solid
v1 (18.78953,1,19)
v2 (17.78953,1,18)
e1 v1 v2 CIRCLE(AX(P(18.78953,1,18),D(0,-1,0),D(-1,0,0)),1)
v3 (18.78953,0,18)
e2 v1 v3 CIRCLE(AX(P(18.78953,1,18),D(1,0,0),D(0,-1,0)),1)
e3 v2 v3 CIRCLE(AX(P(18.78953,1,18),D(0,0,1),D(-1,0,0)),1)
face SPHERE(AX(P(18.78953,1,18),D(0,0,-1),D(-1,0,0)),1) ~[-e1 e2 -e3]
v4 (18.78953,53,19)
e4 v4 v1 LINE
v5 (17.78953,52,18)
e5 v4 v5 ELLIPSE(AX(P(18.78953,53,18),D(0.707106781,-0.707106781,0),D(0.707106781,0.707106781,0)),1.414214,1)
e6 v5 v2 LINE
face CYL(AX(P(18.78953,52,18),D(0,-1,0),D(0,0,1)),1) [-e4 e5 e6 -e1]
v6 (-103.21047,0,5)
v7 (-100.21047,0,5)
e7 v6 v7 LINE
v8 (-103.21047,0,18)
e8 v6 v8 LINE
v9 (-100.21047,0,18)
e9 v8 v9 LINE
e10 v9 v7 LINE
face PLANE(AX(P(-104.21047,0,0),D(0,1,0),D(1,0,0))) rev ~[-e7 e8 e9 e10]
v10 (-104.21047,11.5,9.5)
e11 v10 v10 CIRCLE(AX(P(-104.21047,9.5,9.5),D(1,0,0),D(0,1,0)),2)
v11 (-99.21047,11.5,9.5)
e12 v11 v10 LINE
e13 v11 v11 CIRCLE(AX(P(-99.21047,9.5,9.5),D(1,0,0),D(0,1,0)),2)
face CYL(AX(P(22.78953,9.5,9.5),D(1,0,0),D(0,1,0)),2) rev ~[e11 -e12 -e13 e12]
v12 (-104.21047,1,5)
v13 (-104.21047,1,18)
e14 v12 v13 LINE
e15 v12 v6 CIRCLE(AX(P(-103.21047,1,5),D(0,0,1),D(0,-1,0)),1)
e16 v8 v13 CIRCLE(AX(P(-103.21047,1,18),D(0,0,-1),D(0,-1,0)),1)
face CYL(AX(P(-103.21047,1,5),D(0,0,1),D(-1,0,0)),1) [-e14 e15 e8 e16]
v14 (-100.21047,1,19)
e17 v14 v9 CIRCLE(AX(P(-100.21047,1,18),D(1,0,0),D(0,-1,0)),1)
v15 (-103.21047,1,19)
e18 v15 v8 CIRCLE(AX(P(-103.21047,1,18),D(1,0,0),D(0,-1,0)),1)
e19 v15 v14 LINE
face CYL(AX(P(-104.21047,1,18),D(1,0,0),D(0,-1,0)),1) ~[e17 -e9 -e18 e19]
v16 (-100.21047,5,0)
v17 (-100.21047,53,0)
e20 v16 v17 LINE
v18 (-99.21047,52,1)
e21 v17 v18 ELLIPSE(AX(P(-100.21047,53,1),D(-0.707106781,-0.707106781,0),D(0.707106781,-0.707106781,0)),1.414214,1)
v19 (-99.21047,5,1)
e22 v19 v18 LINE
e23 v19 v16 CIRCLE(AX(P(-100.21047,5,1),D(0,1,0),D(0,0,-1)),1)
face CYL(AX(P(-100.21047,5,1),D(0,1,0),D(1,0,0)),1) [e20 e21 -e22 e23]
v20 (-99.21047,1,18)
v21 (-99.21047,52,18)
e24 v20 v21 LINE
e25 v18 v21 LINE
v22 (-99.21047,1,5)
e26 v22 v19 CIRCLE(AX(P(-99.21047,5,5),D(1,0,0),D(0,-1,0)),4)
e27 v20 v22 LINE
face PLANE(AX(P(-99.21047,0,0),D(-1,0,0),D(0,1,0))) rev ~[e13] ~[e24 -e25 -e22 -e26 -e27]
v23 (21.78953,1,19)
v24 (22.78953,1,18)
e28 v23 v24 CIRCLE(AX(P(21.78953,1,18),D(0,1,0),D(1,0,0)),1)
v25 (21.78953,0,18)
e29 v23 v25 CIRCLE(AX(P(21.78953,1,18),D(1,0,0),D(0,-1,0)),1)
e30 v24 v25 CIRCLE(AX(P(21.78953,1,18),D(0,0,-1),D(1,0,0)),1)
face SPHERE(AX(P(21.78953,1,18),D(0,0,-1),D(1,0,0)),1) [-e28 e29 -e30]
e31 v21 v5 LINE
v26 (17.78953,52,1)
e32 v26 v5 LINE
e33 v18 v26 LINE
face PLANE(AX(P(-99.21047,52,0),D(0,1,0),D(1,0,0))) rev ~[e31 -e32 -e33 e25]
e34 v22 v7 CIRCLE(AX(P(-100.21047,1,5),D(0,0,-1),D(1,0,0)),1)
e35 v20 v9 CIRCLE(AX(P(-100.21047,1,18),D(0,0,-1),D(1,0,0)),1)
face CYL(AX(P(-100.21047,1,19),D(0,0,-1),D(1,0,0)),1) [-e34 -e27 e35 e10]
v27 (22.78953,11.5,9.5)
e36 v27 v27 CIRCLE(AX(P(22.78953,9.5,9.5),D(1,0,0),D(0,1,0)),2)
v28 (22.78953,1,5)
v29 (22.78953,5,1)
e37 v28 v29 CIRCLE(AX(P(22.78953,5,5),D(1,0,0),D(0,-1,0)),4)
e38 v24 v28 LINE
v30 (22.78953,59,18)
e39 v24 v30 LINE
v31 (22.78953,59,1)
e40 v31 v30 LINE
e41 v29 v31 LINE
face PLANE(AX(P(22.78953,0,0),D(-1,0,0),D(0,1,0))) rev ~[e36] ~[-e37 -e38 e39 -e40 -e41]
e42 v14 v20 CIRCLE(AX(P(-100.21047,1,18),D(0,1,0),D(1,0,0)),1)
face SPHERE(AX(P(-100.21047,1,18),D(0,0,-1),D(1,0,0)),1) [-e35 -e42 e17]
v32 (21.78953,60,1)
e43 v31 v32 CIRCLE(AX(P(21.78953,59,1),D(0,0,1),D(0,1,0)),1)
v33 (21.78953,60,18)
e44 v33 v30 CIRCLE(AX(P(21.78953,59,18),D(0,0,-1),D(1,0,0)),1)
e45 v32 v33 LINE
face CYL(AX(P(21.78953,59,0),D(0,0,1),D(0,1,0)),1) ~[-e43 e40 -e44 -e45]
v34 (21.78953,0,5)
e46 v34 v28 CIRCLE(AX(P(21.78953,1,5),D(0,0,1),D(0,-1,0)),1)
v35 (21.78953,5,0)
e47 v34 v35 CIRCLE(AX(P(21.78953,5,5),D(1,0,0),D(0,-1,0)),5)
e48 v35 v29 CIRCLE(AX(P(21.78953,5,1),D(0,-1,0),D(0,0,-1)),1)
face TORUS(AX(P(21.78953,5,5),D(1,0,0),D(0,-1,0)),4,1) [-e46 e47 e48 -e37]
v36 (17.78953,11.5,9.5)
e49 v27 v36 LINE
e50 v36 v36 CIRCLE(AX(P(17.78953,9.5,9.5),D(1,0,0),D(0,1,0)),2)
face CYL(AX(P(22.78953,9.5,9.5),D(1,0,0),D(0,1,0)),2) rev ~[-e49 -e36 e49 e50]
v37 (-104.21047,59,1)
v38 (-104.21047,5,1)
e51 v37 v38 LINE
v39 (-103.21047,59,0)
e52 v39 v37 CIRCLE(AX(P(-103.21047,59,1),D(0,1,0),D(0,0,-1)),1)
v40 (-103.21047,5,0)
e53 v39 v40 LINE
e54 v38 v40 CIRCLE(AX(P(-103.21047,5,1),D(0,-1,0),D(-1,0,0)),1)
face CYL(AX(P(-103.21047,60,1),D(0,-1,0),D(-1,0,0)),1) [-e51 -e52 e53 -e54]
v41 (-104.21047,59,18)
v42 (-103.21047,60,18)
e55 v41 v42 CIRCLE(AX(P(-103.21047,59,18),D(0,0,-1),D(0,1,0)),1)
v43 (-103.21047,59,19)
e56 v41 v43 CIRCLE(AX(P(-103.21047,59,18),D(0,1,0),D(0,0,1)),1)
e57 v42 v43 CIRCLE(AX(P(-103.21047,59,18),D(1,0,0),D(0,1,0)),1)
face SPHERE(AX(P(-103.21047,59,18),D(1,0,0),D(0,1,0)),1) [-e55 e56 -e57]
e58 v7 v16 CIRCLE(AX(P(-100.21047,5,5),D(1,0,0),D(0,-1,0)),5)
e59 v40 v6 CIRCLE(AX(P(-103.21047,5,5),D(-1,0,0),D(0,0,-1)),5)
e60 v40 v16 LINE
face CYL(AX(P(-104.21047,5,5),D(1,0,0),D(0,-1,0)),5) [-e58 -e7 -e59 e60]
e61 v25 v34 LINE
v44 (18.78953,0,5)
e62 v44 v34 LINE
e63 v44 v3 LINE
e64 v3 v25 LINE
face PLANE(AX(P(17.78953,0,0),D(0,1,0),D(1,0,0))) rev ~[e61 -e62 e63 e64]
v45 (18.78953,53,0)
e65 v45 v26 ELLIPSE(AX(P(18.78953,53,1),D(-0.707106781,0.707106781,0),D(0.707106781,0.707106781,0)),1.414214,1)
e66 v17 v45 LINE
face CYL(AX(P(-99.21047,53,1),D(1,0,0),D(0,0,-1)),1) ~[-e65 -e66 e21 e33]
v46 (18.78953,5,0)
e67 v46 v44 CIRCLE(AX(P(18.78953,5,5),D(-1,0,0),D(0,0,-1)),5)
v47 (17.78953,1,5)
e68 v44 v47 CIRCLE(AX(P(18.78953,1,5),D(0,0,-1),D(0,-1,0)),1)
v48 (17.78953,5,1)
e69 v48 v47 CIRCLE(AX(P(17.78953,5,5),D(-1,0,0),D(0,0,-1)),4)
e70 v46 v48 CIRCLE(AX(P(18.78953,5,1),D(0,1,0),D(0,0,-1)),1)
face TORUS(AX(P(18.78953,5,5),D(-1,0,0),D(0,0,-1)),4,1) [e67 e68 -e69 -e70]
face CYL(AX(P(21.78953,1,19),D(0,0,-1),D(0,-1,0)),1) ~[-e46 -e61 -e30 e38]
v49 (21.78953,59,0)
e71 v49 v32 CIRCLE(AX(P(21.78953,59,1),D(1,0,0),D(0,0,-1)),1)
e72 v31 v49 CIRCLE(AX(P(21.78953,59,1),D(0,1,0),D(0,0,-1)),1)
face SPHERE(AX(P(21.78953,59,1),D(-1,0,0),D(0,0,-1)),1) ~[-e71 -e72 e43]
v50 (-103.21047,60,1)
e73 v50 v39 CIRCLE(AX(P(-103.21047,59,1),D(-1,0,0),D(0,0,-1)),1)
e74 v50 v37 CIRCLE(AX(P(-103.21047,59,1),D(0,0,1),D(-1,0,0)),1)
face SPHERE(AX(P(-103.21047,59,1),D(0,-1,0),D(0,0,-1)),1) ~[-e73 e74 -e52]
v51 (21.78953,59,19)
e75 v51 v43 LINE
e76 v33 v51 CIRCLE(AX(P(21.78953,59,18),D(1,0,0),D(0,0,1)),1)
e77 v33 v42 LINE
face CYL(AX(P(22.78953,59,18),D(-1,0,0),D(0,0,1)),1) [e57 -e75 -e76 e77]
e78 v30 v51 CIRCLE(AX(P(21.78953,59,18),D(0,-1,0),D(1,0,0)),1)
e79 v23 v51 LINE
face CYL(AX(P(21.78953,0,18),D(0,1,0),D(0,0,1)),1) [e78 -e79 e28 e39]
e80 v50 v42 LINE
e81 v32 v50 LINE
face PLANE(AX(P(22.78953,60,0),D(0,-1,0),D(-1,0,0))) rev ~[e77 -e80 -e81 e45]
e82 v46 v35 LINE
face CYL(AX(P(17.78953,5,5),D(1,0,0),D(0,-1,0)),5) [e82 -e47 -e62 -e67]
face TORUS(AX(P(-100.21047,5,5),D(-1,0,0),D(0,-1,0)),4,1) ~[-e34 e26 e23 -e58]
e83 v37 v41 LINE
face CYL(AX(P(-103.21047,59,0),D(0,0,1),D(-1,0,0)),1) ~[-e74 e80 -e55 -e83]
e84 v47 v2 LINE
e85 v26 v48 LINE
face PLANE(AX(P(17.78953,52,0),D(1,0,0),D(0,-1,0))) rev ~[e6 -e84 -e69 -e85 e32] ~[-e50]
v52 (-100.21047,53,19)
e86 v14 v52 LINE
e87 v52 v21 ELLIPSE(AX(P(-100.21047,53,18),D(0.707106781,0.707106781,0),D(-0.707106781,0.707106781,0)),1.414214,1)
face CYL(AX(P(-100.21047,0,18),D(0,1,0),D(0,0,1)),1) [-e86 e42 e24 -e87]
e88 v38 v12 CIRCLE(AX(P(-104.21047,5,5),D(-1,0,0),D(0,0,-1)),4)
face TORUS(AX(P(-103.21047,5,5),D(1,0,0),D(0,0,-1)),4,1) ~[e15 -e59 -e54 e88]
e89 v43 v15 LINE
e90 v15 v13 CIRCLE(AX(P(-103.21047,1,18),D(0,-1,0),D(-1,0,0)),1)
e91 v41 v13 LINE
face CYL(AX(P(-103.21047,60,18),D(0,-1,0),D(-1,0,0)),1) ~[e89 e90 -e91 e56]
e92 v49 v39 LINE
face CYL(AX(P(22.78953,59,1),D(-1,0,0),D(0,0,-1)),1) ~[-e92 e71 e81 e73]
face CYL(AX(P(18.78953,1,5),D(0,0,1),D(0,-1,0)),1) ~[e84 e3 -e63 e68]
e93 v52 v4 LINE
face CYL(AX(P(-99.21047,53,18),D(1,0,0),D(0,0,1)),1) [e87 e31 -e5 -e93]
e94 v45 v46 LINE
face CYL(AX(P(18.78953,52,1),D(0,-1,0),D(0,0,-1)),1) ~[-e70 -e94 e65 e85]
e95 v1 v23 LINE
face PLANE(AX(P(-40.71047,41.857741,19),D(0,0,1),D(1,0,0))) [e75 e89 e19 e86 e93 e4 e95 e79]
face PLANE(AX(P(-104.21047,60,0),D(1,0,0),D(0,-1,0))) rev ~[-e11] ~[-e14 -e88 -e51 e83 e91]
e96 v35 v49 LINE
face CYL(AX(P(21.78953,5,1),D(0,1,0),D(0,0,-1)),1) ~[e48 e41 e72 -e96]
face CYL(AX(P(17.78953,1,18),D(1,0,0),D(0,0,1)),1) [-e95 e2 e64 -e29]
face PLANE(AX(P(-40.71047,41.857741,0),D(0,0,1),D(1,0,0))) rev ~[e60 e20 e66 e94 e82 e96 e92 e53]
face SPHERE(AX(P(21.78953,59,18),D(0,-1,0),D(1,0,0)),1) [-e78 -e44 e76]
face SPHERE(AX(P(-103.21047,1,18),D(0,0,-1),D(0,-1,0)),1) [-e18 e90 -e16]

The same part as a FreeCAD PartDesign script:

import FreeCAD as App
import Part
import Sketcher
from FreeCAD import Vector
Q = App.Units.Quantity


def edges_at(feature, points):
    """Names of the edges that pass closest to the given points."""
    edges = feature.Shape.Edges
    near = lambda p: min(range(len(edges)), key=lambda i: edges[i].distToShape(Part.Vertex(*p))[0])
    return sorted({f"Edge{near(p) + 1}" for p in points})

doc = App.newDocument("Part")
params = doc.addObject("Spreadsheet::Sheet", "Params")
for row, (alias, value) in enumerate([
    ("sketch1_width", "5 mm"),
    ("sketch1_width2", "117 mm"),
    ("sketch1_height", "52 mm"),
    ("sketch1_height2", "60 mm"),
    ("pad1_length", "19 mm"),
    ("fillet_radius", "5 mm"),
    ("fillet2_radius", "1 mm"),
    ("sketch2_diameter", "4 mm"),
], start=1):
    params.set(f"A{row}", alias)
    params.set(f"B{row}", "=" + value)
    params.setAlias(f"B{row}", alias)

body = doc.addObject("PartDesign::Body", "Body")

sketch1 = body.newObject("Sketcher::SketchObject", "Sketch")
sketch1.AttachmentSupport = (doc.getObject("XY_Plane"), [""])
sketch1.MapMode = "FlatFace"
sketch1.addGeometry([
    Part.LineSegment(Vector(-104, 0, 0), Vector(-99, 0, 0)),
    Part.LineSegment(Vector(-99, 0, 0), Vector(-99, 52, 0)),
    Part.LineSegment(Vector(-99, 52, 0), Vector(18, 52, 0)),
    Part.LineSegment(Vector(18, 52, 0), Vector(18, 0, 0)),
    Part.LineSegment(Vector(18, 0, 0), Vector(23, 0, 0)),
    Part.LineSegment(Vector(23, 0, 0), Vector(23, 60, 0)),
    Part.LineSegment(Vector(23, 60, 0), Vector(-104, 60, 0)),
    Part.LineSegment(Vector(-104, 60, 0), Vector(-104, 0, 0)),
], False)
sketch1.addConstraint([
    Sketcher.Constraint("Coincident", 0, 2, 1, 1),
    Sketcher.Constraint("Coincident", 1, 2, 2, 1),
    Sketcher.Constraint("Coincident", 2, 2, 3, 1),
    Sketcher.Constraint("Coincident", 3, 2, 4, 1),
    Sketcher.Constraint("Coincident", 4, 2, 5, 1),
    Sketcher.Constraint("Coincident", 5, 2, 6, 1),
    Sketcher.Constraint("Coincident", 6, 2, 7, 1),
    Sketcher.Constraint("Coincident", 7, 2, 0, 1),
    Sketcher.Constraint("Horizontal", 0),
    Sketcher.Constraint("Vertical", 1),
    Sketcher.Constraint("Horizontal", 2),
    Sketcher.Constraint("Vertical", 3),
    Sketcher.Constraint("Horizontal", 4),
    Sketcher.Constraint("Vertical", 5),
    Sketcher.Constraint("Horizontal", 6),
    Sketcher.Constraint("Vertical", 7),
    Sketcher.Constraint("PointOnObject", 0, 2, -1),
    Sketcher.Constraint("PointOnObject", 3, 2, -1),
    Sketcher.Constraint("Equal", 0, 4),
    Sketcher.Constraint("DistanceX", 0, 1, 0, 2, Q("5 mm")),
    Sketcher.Constraint("DistanceX", 2, 1, 2, 2, Q("117 mm")),
    Sketcher.Constraint("DistanceY", 1, 1, 1, 2, Q("52 mm")),
    Sketcher.Constraint("DistanceY", 5, 1, 5, 2, Q("60 mm")),
    Sketcher.Constraint("DistanceX", 0, 2, -1, 1, Q("99.21047 mm")),
])
sketch1.setExpression("Constraints[19]", "Params.sketch1_width")
sketch1.setExpression("Constraints[20]", "Params.sketch1_width2")
sketch1.setExpression("Constraints[21]", "Params.sketch1_height")
sketch1.setExpression("Constraints[22]", "Params.sketch1_height2")
pad1 = body.newObject("PartDesign::Pad", "Pad")
pad1.Profile = sketch1
pad1.setExpression("Length", "Params.pad1_length")
doc.recompute()

fillet = body.newObject("PartDesign::Fillet", "Fillet")
fillet.Base = (pad1, edges_at(pad1, [(-101.71, 0, 0), (20.29, 0, 0)]))
fillet.setExpression("Radius", "Params.fillet_radius")
doc.recompute()

fillet2 = body.newObject("PartDesign::Fillet", "Fillet001")
fillet2.Base = (fillet, edges_at(fillet, [
    (-40.71, 52, 0),
    (17.79, 28.5, 0),
    (-99.21, 28.5, 0),
    (-99.21, 26, 19),
    (-40.71, 52, 19),
    (-104.21, 32.5, 0),
    (-40.71, 60, 0),
    (22.79, 32.5, 0),
    (22.79, 1.464, 1.464),
    (17.79, 1.464, 1.464),
    (22.79, 30, 19),
    (22.79, 60, 9.5),
    (-40.71, 60, 19),
    (-104.21, 60, 9.5),
    (17.79, 26, 19),
    (20.29, 0, 19),
    (-101.71, 0, 19),
    (-104.21, 0, 12),
    (-99.21, 0, 12),
    (-104.21, 30, 19),
    (22.79, 0, 12),
    (17.79, 0, 12),
    (-104.21, 1.464, 1.464),
    (-99.21, 1.464, 1.464),
]))
fillet2.setExpression("Radius", "Params.fillet2_radius")

sketch2 = body.newObject("Sketcher::SketchObject", "Sketch001")
sketch2.AttachmentSupport = (doc.getObject("YZ_Plane"), [""])
sketch2.MapMode = "FlatFace"
sketch2.AttachmentOffset = App.Placement(Vector(0, 0, 22.78953), App.Rotation())
sketch2.addGeometry(Part.Circle(Vector(9.5, 9.5, 0), Vector(0, 0, 1), 2), False)
sketch2.addConstraint([
    Sketcher.Constraint("Diameter", 0, Q("4 mm")),
    Sketcher.Constraint("DistanceX", -1, 1, 0, 3, Q("9.5 mm")),
    Sketcher.Constraint("DistanceY", -1, 1, 0, 3, Q("9.5 mm")),
])
sketch2.setExpression("Constraints[0]", "Params.sketch2_diameter")
pocket1 = body.newObject("PartDesign::Pocket", "Pocket")
pocket1.Profile = sketch2
pocket1.Type = "ThroughAll"

doc.recompute()
